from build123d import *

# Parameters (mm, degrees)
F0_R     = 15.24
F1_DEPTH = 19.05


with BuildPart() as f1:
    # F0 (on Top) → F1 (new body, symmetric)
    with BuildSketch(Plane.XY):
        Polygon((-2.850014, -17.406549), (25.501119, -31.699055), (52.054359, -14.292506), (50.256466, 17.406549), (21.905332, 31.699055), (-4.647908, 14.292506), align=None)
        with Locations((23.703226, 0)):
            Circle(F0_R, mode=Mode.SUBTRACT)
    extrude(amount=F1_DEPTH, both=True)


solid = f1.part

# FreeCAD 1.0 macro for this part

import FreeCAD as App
import Part
import Sketcher
from FreeCAD import Vector
Q = App.Units.Quantity

doc = App.newDocument("Part")
body = doc.addObject("PartDesign::Body", "Body")

# Sketch on XY plane
sketch1 = body.newObject("Sketcher::SketchObject", "Sketch")
sketch1.AttachmentSupport = (doc.getObject("XY_Plane"), [""])
sketch1.MapMode = "FlatFace"
sketch1.addGeometry(Part.LineSegment(Vector(-2.850014, -17.406549, 0), Vector(25.501119, -31.699055, 0)), False)
sketch1.addGeometry(Part.LineSegment(Vector(25.501119, -31.699055, 0), Vector(52.054359, -14.292506, 0)), False)
sketch1.addGeometry(Part.LineSegment(Vector(52.054359, -14.292506, 0), Vector(50.256466, 17.406549, 0)), False)
sketch1.addGeometry(Part.LineSegment(Vector(50.256466, 17.406549, 0), Vector(21.905332, 31.699055, 0)), False)
sketch1.addGeometry(Part.LineSegment(Vector(21.905332, 31.699055, 0), Vector(-4.647908, 14.292506, 0)), False)
sketch1.addGeometry(Part.LineSegment(Vector(-4.647908, 14.292506, 0), Vector(-2.850014, -17.406549, 0)), False)
sketch1.addGeometry(Part.Circle(Vector(23.703226, 0, 0), Vector(0, 0, 1), 15.24), False)
sketch1.addConstraint(Sketcher.Constraint("Coincident", 0, 2, 1, 1))
sketch1.addConstraint(Sketcher.Constraint("Coincident", 1, 2, 2, 1))
sketch1.addConstraint(Sketcher.Constraint("Coincident", 2, 2, 3, 1))
sketch1.addConstraint(Sketcher.Constraint("Coincident", 3, 2, 4, 1))
sketch1.addConstraint(Sketcher.Constraint("Coincident", 4, 2, 5, 1))
sketch1.addConstraint(Sketcher.Constraint("Coincident", 5, 2, 0, 1))
sketch1.addConstraint(Sketcher.Constraint("PointOnObject", 6, 3, -1))
sketch1.addConstraint(Sketcher.Constraint("Parallel", 0, 3))
sketch1.addConstraint(Sketcher.Constraint("Parallel", 1, 4))
sketch1.addConstraint(Sketcher.Constraint("Parallel", 2, 5))
sketch1.addConstraint(Sketcher.Constraint("Equal", 0, 1))
sketch1.addConstraint(Sketcher.Constraint("Equal", 1, 2))
sketch1.addConstraint(Sketcher.Constraint("Equal", 2, 3))
sketch1.addConstraint(Sketcher.Constraint("Diameter", 6, Q("1.2 in")))
sketch1.addConstraint(Sketcher.Constraint("Distance", 0, Q("1.25 in")))
sketch1.addConstraint(Sketcher.Constraint("DistanceY", 4, 2, 2, 2, Q("0.1226001 in")))
sketch1.addConstraint(Sketcher.Constraint("DistanceX", -1, 1, 0, 2, Q("25.501119 mm")))
sketch1.addConstraint(Sketcher.Constraint("DistanceX", -1, 1, 1, 2, Q("52.054359 mm")))
sketch1.addConstraint(Sketcher.Constraint("DistanceY", -1, 1, 2, 2, Q("17.406549 mm")))
sketch1.addConstraint(Sketcher.Constraint("DistanceY", 5, 2, -1, 1, Q("17.406549 mm")))
sketch1.addConstraint(Sketcher.Constraint("DistanceX", 6, 3, 2, 2, Q("26.55324 mm")))
pad1 = body.newObject("PartDesign::Pad", "Pad")
pad1.Profile = sketch1
pad1.Length = Q("1.5 in")
pad1.Midplane = True

doc.recompute()
